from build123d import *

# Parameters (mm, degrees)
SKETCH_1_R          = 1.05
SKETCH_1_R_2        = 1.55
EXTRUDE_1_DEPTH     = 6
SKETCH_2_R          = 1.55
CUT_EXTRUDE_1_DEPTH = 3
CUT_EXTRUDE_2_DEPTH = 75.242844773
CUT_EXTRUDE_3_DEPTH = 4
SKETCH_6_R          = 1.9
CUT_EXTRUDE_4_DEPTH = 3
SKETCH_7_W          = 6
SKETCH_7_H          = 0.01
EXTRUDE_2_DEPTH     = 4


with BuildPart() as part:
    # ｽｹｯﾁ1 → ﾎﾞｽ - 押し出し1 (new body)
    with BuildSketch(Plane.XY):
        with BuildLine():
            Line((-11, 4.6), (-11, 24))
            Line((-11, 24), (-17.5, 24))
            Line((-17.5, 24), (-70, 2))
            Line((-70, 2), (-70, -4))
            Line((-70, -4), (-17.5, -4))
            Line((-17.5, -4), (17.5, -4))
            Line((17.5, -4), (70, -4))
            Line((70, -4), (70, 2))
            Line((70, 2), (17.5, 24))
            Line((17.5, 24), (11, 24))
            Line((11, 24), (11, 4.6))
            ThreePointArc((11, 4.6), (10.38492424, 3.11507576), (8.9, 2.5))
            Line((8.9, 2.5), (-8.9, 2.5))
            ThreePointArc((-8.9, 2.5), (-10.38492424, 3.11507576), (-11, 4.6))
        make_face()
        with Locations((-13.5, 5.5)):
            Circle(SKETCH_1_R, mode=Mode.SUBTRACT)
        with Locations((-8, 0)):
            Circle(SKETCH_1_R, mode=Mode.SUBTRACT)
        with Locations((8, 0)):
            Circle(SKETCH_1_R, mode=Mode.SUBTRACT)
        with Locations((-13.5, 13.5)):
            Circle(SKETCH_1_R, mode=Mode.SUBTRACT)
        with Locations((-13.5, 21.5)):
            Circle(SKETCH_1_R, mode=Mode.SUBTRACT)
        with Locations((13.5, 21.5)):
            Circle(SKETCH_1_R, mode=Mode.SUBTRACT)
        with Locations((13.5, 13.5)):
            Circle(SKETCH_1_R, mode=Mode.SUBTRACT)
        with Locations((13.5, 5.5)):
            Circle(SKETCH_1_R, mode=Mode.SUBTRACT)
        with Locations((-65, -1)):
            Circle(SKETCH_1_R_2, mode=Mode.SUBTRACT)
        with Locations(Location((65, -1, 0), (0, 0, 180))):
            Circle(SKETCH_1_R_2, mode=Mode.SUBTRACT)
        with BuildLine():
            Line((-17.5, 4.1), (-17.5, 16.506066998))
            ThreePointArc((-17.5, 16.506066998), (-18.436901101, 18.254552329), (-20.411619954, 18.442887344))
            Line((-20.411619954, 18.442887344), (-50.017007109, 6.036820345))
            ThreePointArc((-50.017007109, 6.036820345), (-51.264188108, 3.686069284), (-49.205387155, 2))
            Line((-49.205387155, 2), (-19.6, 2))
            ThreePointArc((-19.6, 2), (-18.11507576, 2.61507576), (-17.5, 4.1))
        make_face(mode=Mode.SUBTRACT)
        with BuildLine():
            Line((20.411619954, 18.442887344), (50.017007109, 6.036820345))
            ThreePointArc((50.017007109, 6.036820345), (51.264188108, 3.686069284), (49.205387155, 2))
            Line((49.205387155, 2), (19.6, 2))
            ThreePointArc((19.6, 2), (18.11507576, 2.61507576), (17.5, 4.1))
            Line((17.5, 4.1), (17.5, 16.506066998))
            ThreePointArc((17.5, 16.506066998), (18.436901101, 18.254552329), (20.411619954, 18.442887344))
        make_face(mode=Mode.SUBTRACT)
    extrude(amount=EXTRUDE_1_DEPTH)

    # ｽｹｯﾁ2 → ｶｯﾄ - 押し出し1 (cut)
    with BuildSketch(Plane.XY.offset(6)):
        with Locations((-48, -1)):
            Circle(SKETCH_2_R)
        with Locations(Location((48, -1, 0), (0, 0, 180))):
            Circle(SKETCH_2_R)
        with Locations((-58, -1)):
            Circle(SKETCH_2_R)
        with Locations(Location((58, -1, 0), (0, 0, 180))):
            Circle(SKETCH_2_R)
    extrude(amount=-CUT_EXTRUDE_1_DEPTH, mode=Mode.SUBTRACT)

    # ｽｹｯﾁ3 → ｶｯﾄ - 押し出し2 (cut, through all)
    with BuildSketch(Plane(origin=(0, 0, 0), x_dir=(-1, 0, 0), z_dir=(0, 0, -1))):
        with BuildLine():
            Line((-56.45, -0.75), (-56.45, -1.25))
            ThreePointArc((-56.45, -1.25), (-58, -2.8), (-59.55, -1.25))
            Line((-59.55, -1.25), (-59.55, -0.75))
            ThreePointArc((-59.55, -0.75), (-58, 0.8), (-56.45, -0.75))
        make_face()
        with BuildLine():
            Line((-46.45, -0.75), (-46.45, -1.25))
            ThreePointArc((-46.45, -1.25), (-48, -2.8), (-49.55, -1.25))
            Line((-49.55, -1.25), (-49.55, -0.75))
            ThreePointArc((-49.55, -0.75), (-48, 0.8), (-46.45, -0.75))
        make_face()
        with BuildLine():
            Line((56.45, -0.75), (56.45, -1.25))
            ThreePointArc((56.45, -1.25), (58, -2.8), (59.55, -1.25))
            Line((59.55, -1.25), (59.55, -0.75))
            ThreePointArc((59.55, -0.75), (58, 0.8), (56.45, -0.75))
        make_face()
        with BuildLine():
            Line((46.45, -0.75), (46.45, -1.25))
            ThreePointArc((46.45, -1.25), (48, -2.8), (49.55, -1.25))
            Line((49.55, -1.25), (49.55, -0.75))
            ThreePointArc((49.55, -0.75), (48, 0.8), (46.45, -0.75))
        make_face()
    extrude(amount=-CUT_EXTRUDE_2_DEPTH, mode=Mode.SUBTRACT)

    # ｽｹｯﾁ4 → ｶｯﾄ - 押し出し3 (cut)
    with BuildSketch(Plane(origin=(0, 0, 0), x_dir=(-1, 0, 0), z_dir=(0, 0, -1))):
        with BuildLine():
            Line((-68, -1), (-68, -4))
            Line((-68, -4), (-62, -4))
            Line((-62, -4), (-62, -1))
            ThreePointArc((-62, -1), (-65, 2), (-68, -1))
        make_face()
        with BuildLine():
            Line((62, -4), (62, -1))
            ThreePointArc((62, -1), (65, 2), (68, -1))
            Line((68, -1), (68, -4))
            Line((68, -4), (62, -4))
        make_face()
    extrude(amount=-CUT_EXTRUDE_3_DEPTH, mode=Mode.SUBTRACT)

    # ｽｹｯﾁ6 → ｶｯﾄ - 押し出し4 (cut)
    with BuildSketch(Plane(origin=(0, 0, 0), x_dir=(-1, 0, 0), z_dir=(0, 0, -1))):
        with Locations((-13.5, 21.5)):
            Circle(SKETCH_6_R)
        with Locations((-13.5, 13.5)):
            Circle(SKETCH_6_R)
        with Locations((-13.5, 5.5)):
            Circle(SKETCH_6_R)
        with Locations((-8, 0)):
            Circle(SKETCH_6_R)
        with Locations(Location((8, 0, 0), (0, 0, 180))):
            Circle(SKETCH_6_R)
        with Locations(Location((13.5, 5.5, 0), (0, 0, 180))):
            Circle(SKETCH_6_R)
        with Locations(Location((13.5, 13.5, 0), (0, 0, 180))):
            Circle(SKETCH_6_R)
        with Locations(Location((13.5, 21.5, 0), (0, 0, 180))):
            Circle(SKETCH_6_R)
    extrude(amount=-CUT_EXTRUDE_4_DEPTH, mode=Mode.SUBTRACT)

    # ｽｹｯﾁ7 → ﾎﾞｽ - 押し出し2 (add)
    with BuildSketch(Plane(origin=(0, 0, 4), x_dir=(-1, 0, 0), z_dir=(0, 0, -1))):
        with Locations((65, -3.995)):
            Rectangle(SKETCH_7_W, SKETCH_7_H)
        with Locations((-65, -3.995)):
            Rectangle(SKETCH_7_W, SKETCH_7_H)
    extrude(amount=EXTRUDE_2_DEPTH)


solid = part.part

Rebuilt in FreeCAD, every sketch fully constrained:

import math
import FreeCAD as App
import Part
import Sketcher
from FreeCAD import Vector
Q = App.Units.Quantity

doc = App.newDocument("Part")
body = doc.addObject("PartDesign::Body", "Body")

# Sketch on XY plane
sketch1 = doc.addObject("Sketcher::SketchObject", "Sketch")
body.addObject(sketch1)
sketch1.AttachmentSupport = (doc.XY_Plane, [""])
sketch1.MapMode = "FlatFace"
sketch1.addGeometry(Part.LineSegment(Vector(-11, 4.6, 0), Vector(-11, 24, 0)), False)
sketch1.addGeometry(Part.LineSegment(Vector(-11, 24, 0), Vector(-17.5, 24, 0)), False)
sketch1.addGeometry(Part.LineSegment(Vector(-17.5, 24, 0), Vector(-70, 2, 0)), False)
sketch1.addGeometry(Part.LineSegment(Vector(-70, 2, 0), Vector(-70, -4, 0)), False)
sketch1.addGeometry(Part.LineSegment(Vector(-70, -4, 0), Vector(70, -4, 0)), False)
sketch1.addGeometry(Part.LineSegment(Vector(70, -4, 0), Vector(70, 2, 0)), False)
sketch1.addGeometry(Part.LineSegment(Vector(70, 2, 0), Vector(17.5, 24, 0)), False)
sketch1.addGeometry(Part.LineSegment(Vector(17.5, 24, 0), Vector(11, 24, 0)), False)
sketch1.addGeometry(Part.LineSegment(Vector(11, 24, 0), Vector(11, 4.6, 0)), False)
sketch1.addGeometry(Part.ArcOfCircle(Part.Circle(Vector(8.9, 4.6, 0), Vector(0, 0, 1), 2.1), math.radians(-90), math.radians(0)), False)
sketch1.addGeometry(Part.LineSegment(Vector(8.9, 2.5, 0), Vector(-8.9, 2.5, 0)), False)
sketch1.addGeometry(Part.ArcOfCircle(Part.Circle(Vector(-8.9, 4.6, 0), Vector(0, 0, 1), 2.1), math.radians(-180), math.radians(-90)), False)
sketch1.addGeometry(Part.Circle(Vector(-65, -1, 0), Vector(0, 0, 1), 1.6), False)
sketch1.addGeometry(Part.Circle(Vector(-8, 0, 0), Vector(0, 0, 1), 1.1), False)
sketch1.addGeometry(Part.Circle(Vector(-13.5, 5.5, 0), Vector(0, 0, 1), 1.1), False)
sketch1.addGeometry(Part.Circle(Vector(8, 0, 0), Vector(0, 0, 1), 1.1), False)
sketch1.addGeometry(Part.Circle(Vector(65, -1, 0), Vector(0, 0, 1), 1.6), False)
sketch1.addGeometry(Part.Circle(Vector(13.5, 5.5, 0), Vector(0, 0, 1), 1.1), False)
sketch1.addGeometry(Part.LineSegment(Vector(-17.5, 16.5, 0), Vector(-17.5, 4.1, 0)), False)
sketch1.addGeometry(Part.ArcOfCircle(Part.Circle(Vector(-19.6, 4.1, 0), Vector(0, 0, 1), 2.1), math.radians(-90), math.radians(0)), False)
sketch1.addGeometry(Part.LineSegment(Vector(-19.6, 2, 0), Vector(-49.2, 2, 0)), False)
sketch1.addGeometry(Part.ArcOfCircle(Part.Circle(Vector(-49.2, 4.1, 0), Vector(0, 0, 1), 2.1), math.radians(113), math.radians(270)), False)
sketch1.addGeometry(Part.LineSegment(Vector(-50, 6, 0), Vector(-20.4, 18.4, 0)), False)
sketch1.addGeometry(Part.ArcOfCircle(Part.Circle(Vector(-19.6, 16.5, 0), Vector(0, 0, 1), 2.1), math.radians(0), math.radians(113)), False)
sketch1.addGeometry(Part.Circle(Vector(-13.5, 13.5, 0), Vector(0, 0, 1), 1.1), False)
sketch1.addGeometry(Part.Circle(Vector(-13.5, 21.5, 0), Vector(0, 0, 1), 1.1), False)
sketch1.addGeometry(Part.Circle(Vector(13.5, 13.5, 0), Vector(0, 0, 1), 1.1), False)
sketch1.addGeometry(Part.ArcOfCircle(Part.Circle(Vector(19.6, 16.5, 0), Vector(0, 0, 1), 2.1), math.radians(67), math.radians(180)), False)
sketch1.addGeometry(Part.LineSegment(Vector(20.4, 18.4, 0), Vector(50, 6, 0)), False)
sketch1.addGeometry(Part.ArcOfCircle(Part.Circle(Vector(49.2, 4.1, 0), Vector(0, 0, 1), 2.1), math.radians(-90), math.radians(67)), False)
sketch1.addGeometry(Part.LineSegment(Vector(49.2, 2, 0), Vector(19.6, 2, 0)), False)
sketch1.addGeometry(Part.ArcOfCircle(Part.Circle(Vector(19.6, 4.1, 0), Vector(0, 0, 1), 2.1), math.radians(-180), math.radians(-90)), False)
sketch1.addGeometry(Part.LineSegment(Vector(17.5, 4.1, 0), Vector(17.5, 16.5, 0)), False)
sketch1.addGeometry(Part.Circle(Vector(13.5, 21.5, 0), Vector(0, 0, 1), 1.1), False)
sketch1.addConstraint(Sketcher.Constraint("Coincident", 0, 2, 1, 1))
sketch1.addConstraint(Sketcher.Constraint("Coincident", 1, 2, 2, 1))
sketch1.addConstraint(Sketcher.Constraint("Coincident", 2, 2, 3, 1))
sketch1.addConstraint(Sketcher.Constraint("Coincident", 3, 2, 4, 1))
sketch1.addConstraint(Sketcher.Constraint("Coincident", 4, 2, 5, 1))
sketch1.addConstraint(Sketcher.Constraint("Coincident", 5, 2, 6, 1))
sketch1.addConstraint(Sketcher.Constraint("Coincident", 6, 2, 7, 1))
sketch1.addConstraint(Sketcher.Constraint("Coincident", 7, 2, 8, 1))
sketch1.addConstraint(Sketcher.Constraint("Tangent", 8, 2, 9, 2))
sketch1.addConstraint(Sketcher.Constraint("Tangent", 9, 1, 10, 1))
sketch1.addConstraint(Sketcher.Constraint("Tangent", 10, 2, 11, 2))
sketch1.addConstraint(Sketcher.Constraint("Tangent", 11, 1, 0, 1))
sketch1.addConstraint(Sketcher.Constraint("Tangent", 18, 2, 19, 2))
sketch1.addConstraint(Sketcher.Constraint("Tangent", 19, 1, 20, 1))
sketch1.addConstraint(Sketcher.Constraint("Tangent", 20, 2, 21, 2))
sketch1.addConstraint(Sketcher.Constraint("Tangent", 21, 1, 22, 1))
sketch1.addConstraint(Sketcher.Constraint("Tangent", 22, 2, 23, 2))
sketch1.addConstraint(Sketcher.Constraint("Tangent", 23, 1, 18, 1))
sketch1.addConstraint(Sketcher.Constraint("Tangent", 27, 1, 28, 1))
sketch1.addConstraint(Sketcher.Constraint("Tangent", 28, 2, 29, 2))
sketch1.addConstraint(Sketcher.Constraint("Tangent", 29, 1, 30, 1))
sketch1.addConstraint(Sketcher.Constraint("Tangent", 30, 2, 31, 2))
sketch1.addConstraint(Sketcher.Constraint("Tangent", 31, 1, 32, 1))
sketch1.addConstraint(Sketcher.Constraint("Tangent", 32, 2, 27, 2))
sketch1.addConstraint(Sketcher.Constraint("Vertical", 0))
sketch1.addConstraint(Sketcher.Constraint("Horizontal", 1))
sketch1.addConstraint(Sketcher.Constraint("Vertical", 3))
sketch1.addConstraint(Sketcher.Constraint("Horizontal", 4))
sketch1.addConstraint(Sketcher.Constraint("Vertical", 5))
sketch1.addConstraint(Sketcher.Constraint("Horizontal", 7))
sketch1.addConstraint(Sketcher.Constraint("Vertical", 8))
sketch1.addConstraint(Sketcher.Constraint("Horizontal", 10))
sketch1.addConstraint(Sketcher.Constraint("Vertical", 18))
sketch1.addConstraint(Sketcher.Constraint("Horizontal", 20))
sketch1.addConstraint(Sketcher.Constraint("Horizontal", 30))
sketch1.addConstraint(Sketcher.Constraint("Vertical", 32))
sketch1.addConstraint(Sketcher.Constraint("Equal", 9, 11))
sketch1.addConstraint(Sketcher.Constraint("Equal", 13, 14))
sketch1.addConstraint(Sketcher.Constraint("Equal", 14, 15))
sketch1.addConstraint(Sketcher.Constraint("Equal", 12, 16))
sketch1.addConstraint(Sketcher.Constraint("Equal", 15, 17))
sketch1.addConstraint(Sketcher.Constraint("Equal", 11, 19))
sketch1.addConstraint(Sketcher.Constraint("Equal", 19, 21))
sketch1.addConstraint(Sketcher.Constraint("Equal", 21, 23))
sketch1.addConstraint(Sketcher.Constraint("Equal", 17, 24))
sketch1.addConstraint(Sketcher.Constraint("Equal", 24, 25))
sketch1.addConstraint(Sketcher.Constraint("Equal", 25, 26))
sketch1.addConstraint(Sketcher.Constraint("Equal", 23, 27))
sketch1.addConstraint(Sketcher.Constraint("Equal", 27, 29))
sketch1.addConstraint(Sketcher.Constraint("Equal", 29, 31))
sketch1.addConstraint(Sketcher.Constraint("Equal", 26, 33))
sketch1.addConstraint(Sketcher.Constraint("Symmetric", 13, 3, 15, 3, -1, 1))
sketch1.addConstraint(Sketcher.Constraint("Symmetric", 12, 3, 16, 3, -2))
sketch1.addConstraint(Sketcher.Constraint("Symmetric", 14, 3, 17, 3, -2))
sketch1.addConstraint(Sketcher.Constraint("Symmetric", 24, 3, 26, 3, -2))
sketch1.addConstraint(Sketcher.Constraint("Symmetric", 23, 3, 27, 3, -2))
sketch1.addConstraint(Sketcher.Constraint("Symmetric", 21, 3, 29, 3, -2))
sketch1.addConstraint(Sketcher.Constraint("Symmetric", 25, 3, 33, 3, -2))
sketch1.addConstraint(Sketcher.Constraint("Symmetric", 2, 2, 5, 2, -2))
sketch1.addConstraint(Sketcher.Constraint("Symmetric", 1, 2, 6, 2, -2))
sketch1.addConstraint(Sketcher.Constraint("PointOnObject", 13, 3, -1))
sketch1.addConstraint(Sketcher.Constraint("Parallel", 2, 22))
sketch1.addConstraint(Sketcher.Constraint("Horizontal", 5, 2, 19, 1))
sketch1.addConstraint(Sketcher.Constraint("Vertical", 14, 3, 24, 3))
sketch1.addConstraint(Sketcher.Constraint("Vertical", 24, 3, 25, 3))
sketch1.addConstraint(Sketcher.Constraint("Vertical", 1, 2, 18, 2))
sketch1.addConstraint(Sketcher.Constraint("Equal", 1, 7))
sketch1.addConstraint(Sketcher.Constraint("Diameter", 12, Q("3.1 mm")))
sketch1.addConstraint(Sketcher.Constraint("Diameter", 13, Q("2.1 mm")))
sketch1.addConstraint(Sketcher.Constraint("Radius", 9, Q("2.1 mm")))
sketch1.addConstraint(Sketcher.Constraint("DistanceX", 4, 1, 4, 2, Q("140 mm")))
sketch1.addConstraint(Sketcher.Constraint("DistanceY", 3, 2, 3, 1, Q("6 mm")))
sketch1.addConstraint(Sketcher.Constraint("DistanceX", 1, 2, 1, 1, Q("6.5 mm")))
sketch1.addConstraint(Sketcher.Constraint("DistanceX", 10, 2, 10, 1, Q("17.8 mm")))
sketch1.addConstraint(Sketcher.Constraint("DistanceY", 0, 1, 0, 2, Q("19.4 mm")))
sketch1.addConstraint(Sketcher.Constraint("DistanceX", 12, 3, -1, 1, Q("65 mm")))
sketch1.addConstraint(Sketcher.Constraint("DistanceY", 12, 3, -1, 1, Q("1 mm")))
sketch1.addConstraint(Sketcher.Constraint("DistanceX", 13, 3, -1, 1, Q("8 mm")))
sketch1.addConstraint(Sketcher.Constraint("DistanceY", -1, 1, 0, 2, Q("24 mm")))
sketch1.addConstraint(Sketcher.Constraint("DistanceY", -1, 1, 2, 2, Q("2 mm")))
sketch1.addConstraint(Sketcher.Constraint("DistanceX", 14, 3, 17, 3, Q("27 mm")))
sketch1.addConstraint(Sketcher.Constraint("DistanceY", 14, 3, 24, 3, Q("8 mm")))
sketch1.addConstraint(Sketcher.Constraint("DistanceY", 24, 3, 25, 3, Q("8 mm")))
sketch1.addConstraint(Sketcher.Constraint("DistanceY", 9, 1, 17, 3, Q("3 mm")))
sketch1.addConstraint(Sketcher.Constraint("Distance", 22, Q("32.09968 mm")))
pad1 = doc.addObject("PartDesign::Pad", "Pad")
body.addObject(pad1)
pad1.Profile = sketch1
pad1.Length = 6

# Sketch on XY plane
sketch2 = doc.addObject("Sketcher::SketchObject", "Sketch001")
body.addObject(sketch2)
sketch2.AttachmentSupport = (doc.XY_Plane, [""])
sketch2.MapMode = "FlatFace"
sketch2.AttachmentOffset = App.Placement(Vector(0, 0, 6), App.Rotation())
sketch2.addGeometry(Part.Circle(Vector(-48, -1, 0), Vector(0, 0, 1), 1.6), False)
sketch2.addGeometry(Part.Circle(Vector(48, -1, 0), Vector(0, 0, 1), 1.6), False)
sketch2.addGeometry(Part.Circle(Vector(-58, -1, 0), Vector(0, 0, 1), 1.6), False)
sketch2.addGeometry(Part.Circle(Vector(58, -1, 0), Vector(0, 0, 1), 1.6), False)
sketch2.addConstraint(Sketcher.Constraint("Equal", 0, 1))
sketch2.addConstraint(Sketcher.Constraint("Equal", 1, 2))
sketch2.addConstraint(Sketcher.Constraint("Equal", 2, 3))
sketch2.addConstraint(Sketcher.Constraint("Symmetric", 0, 3, 1, 3, -2))
sketch2.addConstraint(Sketcher.Constraint("Symmetric", 2, 3, 3, 3, -2))
sketch2.addConstraint(Sketcher.Constraint("Horizontal", 1, 3, 2, 3))
sketch2.addConstraint(Sketcher.Constraint("Diameter", 0, Q("3.1 mm")))
sketch2.addConstraint(Sketcher.Constraint("DistanceX", 0, 3, -1, 1, Q("48 mm")))
sketch2.addConstraint(Sketcher.Constraint("DistanceY", 0, 3, -1, 1, Q("1 mm")))
sketch2.addConstraint(Sketcher.Constraint("DistanceX", 2, 3, -1, 1, Q("58 mm")))
pocket1 = doc.addObject("PartDesign::Pocket", "Pocket")
body.addObject(pocket1)
pocket1.Profile = sketch2
pocket1.Length = 3

# Sketch on XY plane
sketch3 = doc.addObject("Sketcher::SketchObject", "Sketch002")
body.addObject(sketch3)
sketch3.AttachmentSupport = (doc.XY_Plane, [""])
sketch3.MapMode = "FlatFace"
sketch3.addGeometry(Part.LineSegment(Vector(56.5, -1.2, 0), Vector(56.5, -0.8, 0)), False)
sketch3.addGeometry(Part.ArcOfCircle(Part.Circle(Vector(58, -0.8, 0), Vector(0, 0, 1), 1.6), math.radians(0), math.radians(180)), False)
sketch3.addGeometry(Part.LineSegment(Vector(59.5, -0.8, 0), Vector(59.5, -1.2, 0)), False)
sketch3.addGeometry(Part.ArcOfCircle(Part.Circle(Vector(58, -1.2, 0), Vector(0, 0, 1), 1.6), math.radians(180), math.radians(360)), False)
sketch3.addGeometry(Part.LineSegment(Vector(46.5, -1.2, 0), Vector(46.5, -0.8, 0)), False)
sketch3.addGeometry(Part.ArcOfCircle(Part.Circle(Vector(48, -0.8, 0), Vector(0, 0, 1), 1.6), math.radians(0), math.radians(180)), False)
sketch3.addGeometry(Part.LineSegment(Vector(49.5, -0.8, 0), Vector(49.5, -1.2, 0)), False)
sketch3.addGeometry(Part.ArcOfCircle(Part.Circle(Vector(48, -1.2, 0), Vector(0, 0, 1), 1.6), math.radians(180), math.radians(360)), False)
sketch3.addGeometry(Part.LineSegment(Vector(-56.5, -0.8, 0), Vector(-56.5, -1.2, 0)), False)
sketch3.addGeometry(Part.ArcOfCircle(Part.Circle(Vector(-58, -1.2, 0), Vector(0, 0, 1), 1.6), math.radians(180), math.radians(360)), False)
sketch3.addGeometry(Part.LineSegment(Vector(-59.5, -1.2, 0), Vector(-59.5, -0.8, 0)), False)
sketch3.addGeometry(Part.ArcOfCircle(Part.Circle(Vector(-58, -0.8, 0), Vector(0, 0, 1), 1.6), math.radians(0), math.radians(180)), False)
sketch3.addGeometry(Part.LineSegment(Vector(-46.5, -0.8, 0), Vector(-46.5, -1.2, 0)), False)
sketch3.addGeometry(Part.ArcOfCircle(Part.Circle(Vector(-48, -1.2, 0), Vector(0, 0, 1), 1.6), math.radians(180), math.radians(360)), False)
sketch3.addGeometry(Part.LineSegment(Vector(-49.5, -1.2, 0), Vector(-49.5, -0.8, 0)), False)
sketch3.addGeometry(Part.ArcOfCircle(Part.Circle(Vector(-48, -0.8, 0), Vector(0, 0, 1), 1.6), math.radians(0), math.radians(180)), False)
sketch3.addConstraint(Sketcher.Constraint("Tangent", 0, 2, 1, 2))
sketch3.addConstraint(Sketcher.Constraint("Tangent", 1, 1, 2, 1))
sketch3.addConstraint(Sketcher.Constraint("Tangent", 2, 2, 3, 2))
sketch3.addConstraint(Sketcher.Constraint("Tangent", 3, 1, 0, 1))
sketch3.addConstraint(Sketcher.Constraint("Tangent", 4, 2, 5, 2))
sketch3.addConstraint(Sketcher.Constraint("Tangent", 5, 1, 6, 1))
sketch3.addConstraint(Sketcher.Constraint("Tangent", 6, 2, 7, 2))
sketch3.addConstraint(Sketcher.Constraint("Tangent", 7, 1, 4, 1))
sketch3.addConstraint(Sketcher.Constraint("Tangent", 8, 2, 9, 2))
sketch3.addConstraint(Sketcher.Constraint("Tangent", 9, 1, 10, 1))
sketch3.addConstraint(Sketcher.Constraint("Tangent", 10, 2, 11, 2))
sketch3.addConstraint(Sketcher.Constraint("Tangent", 11, 1, 8, 1))
sketch3.addConstraint(Sketcher.Constraint("Tangent", 12, 2, 13, 2))
sketch3.addConstraint(Sketcher.Constraint("Tangent", 13, 1, 14, 1))
sketch3.addConstraint(Sketcher.Constraint("Tangent", 14, 2, 15, 2))
sketch3.addConstraint(Sketcher.Constraint("Tangent", 15, 1, 12, 1))
sketch3.addConstraint(Sketcher.Constraint("Vertical", 0))
sketch3.addConstraint(Sketcher.Constraint("Vertical", 2))
sketch3.addConstraint(Sketcher.Constraint("Vertical", 4))
sketch3.addConstraint(Sketcher.Constraint("Vertical", 6))
sketch3.addConstraint(Sketcher.Constraint("Vertical", 8))
sketch3.addConstraint(Sketcher.Constraint("Vertical", 10))
sketch3.addConstraint(Sketcher.Constraint("Vertical", 12))
sketch3.addConstraint(Sketcher.Constraint("Vertical", 14))
sketch3.addConstraint(Sketcher.Constraint("Equal", 3, 5))
sketch3.addConstraint(Sketcher.Constraint("Equal", 7, 9))
sketch3.addConstraint(Sketcher.Constraint("Equal", 11, 13))
sketch3.addConstraint(Sketcher.Constraint("Symmetric", 3, 3, 9, 3, -2))
sketch3.addConstraint(Sketcher.Constraint("Symmetric", 7, 3, 13, 3, -2))
sketch3.addConstraint(Sketcher.Constraint("Horizontal", 1, 3, 5, 3))
sketch3.addConstraint(Sketcher.Constraint("Horizontal", 3, 3, 7, 3))
sketch3.addConstraint(Sketcher.Constraint("Horizontal", 5, 3, 11, 3))
sketch3.addConstraint(Sketcher.Constraint("Horizontal", 11, 3, 15, 3))
sketch3.addConstraint(Sketcher.Constraint("Radius", 1, Q("1.55 mm")))
sketch3.addConstraint(Sketcher.Constraint("DistanceY", 0, 1, 0, 2, Q("0.5 mm")))
sketch3.addConstraint(Sketcher.Constraint("DistanceX", -1, 1, 1, 3, Q("58 mm")))
sketch3.addConstraint(Sketcher.Constraint("DistanceX", -1, 1, 5, 3, Q("48 mm")))
sketch3.addConstraint(Sketcher.Constraint("DistanceY", 1, 3, -1, 1, Q("0.75 mm")))
pocket2 = doc.addObject("PartDesign::Pocket", "Pocket001")
body.addObject(pocket2)
pocket2.Profile = sketch3
pocket2.Type = "ThroughAll"
pocket2.Reversed = True

# Sketch on XY plane
sketch4 = doc.addObject("Sketcher::SketchObject", "Sketch003")
body.addObject(sketch4)
sketch4.AttachmentSupport = (doc.XY_Plane, [""])
sketch4.MapMode = "FlatFace"
sketch4.addGeometry(Part.LineSegment(Vector(68, -1, 0), Vector(68, -4, 0)), False)
sketch4.addGeometry(Part.LineSegment(Vector(68, -4, 0), Vector(62, -4, 0)), False)
sketch4.addGeometry(Part.LineSegment(Vector(62, -4, 0), Vector(62, -1, 0)), False)
sketch4.addGeometry(Part.ArcOfCircle(Part.Circle(Vector(65, -1, 0), Vector(0, 0, 1), 3), math.radians(0), math.radians(180)), False)
sketch4.addGeometry(Part.LineSegment(Vector(-62, -1, 0), Vector(-62, -4, 0)), False)
sketch4.addGeometry(Part.LineSegment(Vector(-62, -4, 0), Vector(-68, -4, 0)), False)
sketch4.addGeometry(Part.LineSegment(Vector(-68, -4, 0), Vector(-68, -1, 0)), False)
sketch4.addGeometry(Part.ArcOfCircle(Part.Circle(Vector(-65, -1, 0), Vector(0, 0, 1), 3), math.radians(0), math.radians(180)), False)
sketch4.addConstraint(Sketcher.Constraint("Coincident", 0, 2, 1, 1))
sketch4.addConstraint(Sketcher.Constraint("Coincident", 1, 2, 2, 1))
sketch4.addConstraint(Sketcher.Constraint("Tangent", 2, 2, 3, 2))
sketch4.addConstraint(Sketcher.Constraint("Tangent", 3, 1, 0, 1))
sketch4.addConstraint(Sketcher.Constraint("Coincident", 4, 2, 5, 1))
sketch4.addConstraint(Sketcher.Constraint("Coincident", 5, 2, 6, 1))
sketch4.addConstraint(Sketcher.Constraint("Tangent", 6, 2, 7, 2))
sketch4.addConstraint(Sketcher.Constraint("Tangent", 7, 1, 4, 1))
sketch4.addConstraint(Sketcher.Constraint("Vertical", 0))
sketch4.addConstraint(Sketcher.Constraint("Horizontal", 1))
sketch4.addConstraint(Sketcher.Constraint("Vertical", 2))
sketch4.addConstraint(Sketcher.Constraint("Vertical", 4))
sketch4.addConstraint(Sketcher.Constraint("Horizontal", 5))
sketch4.addConstraint(Sketcher.Constraint("Vertical", 6))
sketch4.addConstraint(Sketcher.Constraint("Equal", 3, 7))
sketch4.addConstraint(Sketcher.Constraint("Symmetric", 3, 3, 7, 3, -2))
sketch4.addConstraint(Sketcher.Constraint("Horizontal", 1, 2, 4, 2))
sketch4.addConstraint(Sketcher.Constraint("Radius", 3, Q("3 mm")))
sketch4.addConstraint(Sketcher.Constraint("DistanceY", 0, 2, 0, 1, Q("3 mm")))
sketch4.addConstraint(Sketcher.Constraint("DistanceX", -1, 1, 3, 3, Q("65 mm")))
sketch4.addConstraint(Sketcher.Constraint("DistanceY", 3, 3, -1, 1, Q("1 mm")))
pocket3 = doc.addObject("PartDesign::Pocket", "Pocket002")
body.addObject(pocket3)
pocket3.Profile = sketch4
pocket3.Length = 4
pocket3.Reversed = True

# Sketch on XY plane
sketch5 = doc.addObject("Sketcher::SketchObject", "Sketch004")
body.addObject(sketch5)
sketch5.AttachmentSupport = (doc.XY_Plane, [""])
sketch5.MapMode = "FlatFace"
sketch5.addGeometry(Part.Circle(Vector(13.5, 21.5, 0), Vector(0, 0, 1), 1.9), False)
sketch5.addGeometry(Part.Circle(Vector(13.5, 13.5, 0), Vector(0, 0, 1), 1.9), False)
sketch5.addGeometry(Part.Circle(Vector(13.5, 5.5, 0), Vector(0, 0, 1), 1.9), False)
sketch5.addGeometry(Part.Circle(Vector(8, 0, 0), Vector(0, 0, 1), 1.9), False)
sketch5.addGeometry(Part.Circle(Vector(-8, 0, 0), Vector(0, 0, 1), 1.9), False)
sketch5.addGeometry(Part.Circle(Vector(-13.5, 5.5, 0), Vector(0, 0, 1), 1.9), False)
sketch5.addGeometry(Part.Circle(Vector(-13.5, 13.5, 0), Vector(0, 0, 1), 1.9), False)
sketch5.addGeometry(Part.Circle(Vector(-13.5, 21.5, 0), Vector(0, 0, 1), 1.9), False)
sketch5.addConstraint(Sketcher.Constraint("Equal", 0, 1))
sketch5.addConstraint(Sketcher.Constraint("Equal", 1, 2))
sketch5.addConstraint(Sketcher.Constraint("Equal", 2, 3))
sketch5.addConstraint(Sketcher.Constraint("Equal", 3, 4))
sketch5.addConstraint(Sketcher.Constraint("Equal", 4, 5))
sketch5.addConstraint(Sketcher.Constraint("Equal", 5, 6))
sketch5.addConstraint(Sketcher.Constraint("Equal", 6, 7))
sketch5.addConstraint(Sketcher.Constraint("Symmetric", 3, 3, 4, 3, -1, 1))
sketch5.addConstraint(Sketcher.Constraint("Symmetric", 2, 3, 5, 3, -2))
sketch5.addConstraint(Sketcher.Constraint("Symmetric", 1, 3, 6, 3, -2))
sketch5.addConstraint(Sketcher.Constraint("Symmetric", 0, 3, 7, 3, -2))
sketch5.addConstraint(Sketcher.Constraint("PointOnObject", 3, 3, -1))
sketch5.addConstraint(Sketcher.Constraint("Vertical", 0, 3, 1, 3))
sketch5.addConstraint(Sketcher.Constraint("Vertical", 1, 3, 2, 3))
sketch5.addConstraint(Sketcher.Constraint("Diameter", 0, Q("3.8 mm")))
sketch5.addConstraint(Sketcher.Constraint("DistanceX", -1, 1, 3, 3, Q("8 mm")))
sketch5.addConstraint(Sketcher.Constraint("DistanceY", 1, 3, 0, 3, Q("8 mm")))
sketch5.addConstraint(Sketcher.Constraint("DistanceY", 2, 3, 1, 3, Q("8 mm")))
sketch5.addConstraint(Sketcher.Constraint("DistanceX", 5, 3, 2, 3, Q("27 mm")))
sketch5.addConstraint(Sketcher.Constraint("DistanceY", -1, 1, 0, 3, Q("21.5 mm")))
pocket4 = doc.addObject("PartDesign::Pocket", "Pocket003")
body.addObject(pocket4)
pocket4.Profile = sketch5
pocket4.Length = 3
pocket4.Reversed = True

# Sketch on XY plane
sketch6 = doc.addObject("Sketcher::SketchObject", "Sketch005")
body.addObject(sketch6)
sketch6.AttachmentSupport = (doc.XY_Plane, [""])
sketch6.MapMode = "FlatFace"
sketch6.AttachmentOffset = App.Placement(Vector(0, 0, 4), App.Rotation())
sketch6.addGeometry(Part.LineSegment(Vector(-62, -3.99, 0), Vector(-62, -4, 0)), False)
sketch6.addGeometry(Part.LineSegment(Vector(-62, -4, 0), Vector(-68, -4, 0)), False)
sketch6.addGeometry(Part.LineSegment(Vector(-68, -4, 0), Vector(-68, -3.99, 0)), False)
sketch6.addGeometry(Part.LineSegment(Vector(-68, -3.99, 0), Vector(-62, -3.99, 0)), False)
sketch6.addGeometry(Part.LineSegment(Vector(68, -3.99, 0), Vector(68, -4, 0)), False)
sketch6.addGeometry(Part.LineSegment(Vector(68, -4, 0), Vector(62, -4, 0)), False)
sketch6.addGeometry(Part.LineSegment(Vector(62, -4, 0), Vector(62, -3.99, 0)), False)
sketch6.addGeometry(Part.LineSegment(Vector(62, -3.99, 0), Vector(68, -3.99, 0)), False)
sketch6.addConstraint(Sketcher.Constraint("Coincident", 0, 2, 1, 1))
sketch6.addConstraint(Sketcher.Constraint("Coincident", 1, 2, 2, 1))
sketch6.addConstraint(Sketcher.Constraint("Coincident", 2, 2, 3, 1))
sketch6.addConstraint(Sketcher.Constraint("Coincident", 3, 2, 0, 1))
sketch6.addConstraint(Sketcher.Constraint("Coincident", 4, 2, 5, 1))
sketch6.addConstraint(Sketcher.Constraint("Coincident", 5, 2, 6, 1))
sketch6.addConstraint(Sketcher.Constraint("Coincident", 6, 2, 7, 1))
sketch6.addConstraint(Sketcher.Constraint("Coincident", 7, 2, 4, 1))
sketch6.addConstraint(Sketcher.Constraint("Vertical", 0))
sketch6.addConstraint(Sketcher.Constraint("Horizontal", 1))
sketch6.addConstraint(Sketcher.Constraint("Vertical", 2))
sketch6.addConstraint(Sketcher.Constraint("Horizontal", 3))
sketch6.addConstraint(Sketcher.Constraint("Vertical", 4))
sketch6.addConstraint(Sketcher.Constraint("Horizontal", 5))
sketch6.addConstraint(Sketcher.Constraint("Vertical", 6))
sketch6.addConstraint(Sketcher.Constraint("Horizontal", 7))
sketch6.addConstraint(Sketcher.Constraint("Symmetric", 1, 2, 4, 2, -2))
sketch6.addConstraint(Sketcher.Constraint("Symmetric", 3, 2, 6, 2, -2))
sketch6.addConstraint(Sketcher.Constraint("DistanceX", 1, 2, 1, 1, Q("6 mm")))
sketch6.addConstraint(Sketcher.Constraint("DistanceX", 0, 2, -1, 1, Q("62 mm")))
sketch6.addConstraint(Sketcher.Constraint("DistanceY", 0, 2, -1, 1, Q("4 mm")))
sketch6.addConstraint(Sketcher.Constraint("DistanceY", 0, 2, 0, 1, Q("0.01 mm")))
pad2 = doc.addObject("PartDesign::Pad", "Pad001")
body.addObject(pad2)
pad2.Profile = sketch6
pad2.Length = 4
pad2.Reversed = True

doc.recompute()
